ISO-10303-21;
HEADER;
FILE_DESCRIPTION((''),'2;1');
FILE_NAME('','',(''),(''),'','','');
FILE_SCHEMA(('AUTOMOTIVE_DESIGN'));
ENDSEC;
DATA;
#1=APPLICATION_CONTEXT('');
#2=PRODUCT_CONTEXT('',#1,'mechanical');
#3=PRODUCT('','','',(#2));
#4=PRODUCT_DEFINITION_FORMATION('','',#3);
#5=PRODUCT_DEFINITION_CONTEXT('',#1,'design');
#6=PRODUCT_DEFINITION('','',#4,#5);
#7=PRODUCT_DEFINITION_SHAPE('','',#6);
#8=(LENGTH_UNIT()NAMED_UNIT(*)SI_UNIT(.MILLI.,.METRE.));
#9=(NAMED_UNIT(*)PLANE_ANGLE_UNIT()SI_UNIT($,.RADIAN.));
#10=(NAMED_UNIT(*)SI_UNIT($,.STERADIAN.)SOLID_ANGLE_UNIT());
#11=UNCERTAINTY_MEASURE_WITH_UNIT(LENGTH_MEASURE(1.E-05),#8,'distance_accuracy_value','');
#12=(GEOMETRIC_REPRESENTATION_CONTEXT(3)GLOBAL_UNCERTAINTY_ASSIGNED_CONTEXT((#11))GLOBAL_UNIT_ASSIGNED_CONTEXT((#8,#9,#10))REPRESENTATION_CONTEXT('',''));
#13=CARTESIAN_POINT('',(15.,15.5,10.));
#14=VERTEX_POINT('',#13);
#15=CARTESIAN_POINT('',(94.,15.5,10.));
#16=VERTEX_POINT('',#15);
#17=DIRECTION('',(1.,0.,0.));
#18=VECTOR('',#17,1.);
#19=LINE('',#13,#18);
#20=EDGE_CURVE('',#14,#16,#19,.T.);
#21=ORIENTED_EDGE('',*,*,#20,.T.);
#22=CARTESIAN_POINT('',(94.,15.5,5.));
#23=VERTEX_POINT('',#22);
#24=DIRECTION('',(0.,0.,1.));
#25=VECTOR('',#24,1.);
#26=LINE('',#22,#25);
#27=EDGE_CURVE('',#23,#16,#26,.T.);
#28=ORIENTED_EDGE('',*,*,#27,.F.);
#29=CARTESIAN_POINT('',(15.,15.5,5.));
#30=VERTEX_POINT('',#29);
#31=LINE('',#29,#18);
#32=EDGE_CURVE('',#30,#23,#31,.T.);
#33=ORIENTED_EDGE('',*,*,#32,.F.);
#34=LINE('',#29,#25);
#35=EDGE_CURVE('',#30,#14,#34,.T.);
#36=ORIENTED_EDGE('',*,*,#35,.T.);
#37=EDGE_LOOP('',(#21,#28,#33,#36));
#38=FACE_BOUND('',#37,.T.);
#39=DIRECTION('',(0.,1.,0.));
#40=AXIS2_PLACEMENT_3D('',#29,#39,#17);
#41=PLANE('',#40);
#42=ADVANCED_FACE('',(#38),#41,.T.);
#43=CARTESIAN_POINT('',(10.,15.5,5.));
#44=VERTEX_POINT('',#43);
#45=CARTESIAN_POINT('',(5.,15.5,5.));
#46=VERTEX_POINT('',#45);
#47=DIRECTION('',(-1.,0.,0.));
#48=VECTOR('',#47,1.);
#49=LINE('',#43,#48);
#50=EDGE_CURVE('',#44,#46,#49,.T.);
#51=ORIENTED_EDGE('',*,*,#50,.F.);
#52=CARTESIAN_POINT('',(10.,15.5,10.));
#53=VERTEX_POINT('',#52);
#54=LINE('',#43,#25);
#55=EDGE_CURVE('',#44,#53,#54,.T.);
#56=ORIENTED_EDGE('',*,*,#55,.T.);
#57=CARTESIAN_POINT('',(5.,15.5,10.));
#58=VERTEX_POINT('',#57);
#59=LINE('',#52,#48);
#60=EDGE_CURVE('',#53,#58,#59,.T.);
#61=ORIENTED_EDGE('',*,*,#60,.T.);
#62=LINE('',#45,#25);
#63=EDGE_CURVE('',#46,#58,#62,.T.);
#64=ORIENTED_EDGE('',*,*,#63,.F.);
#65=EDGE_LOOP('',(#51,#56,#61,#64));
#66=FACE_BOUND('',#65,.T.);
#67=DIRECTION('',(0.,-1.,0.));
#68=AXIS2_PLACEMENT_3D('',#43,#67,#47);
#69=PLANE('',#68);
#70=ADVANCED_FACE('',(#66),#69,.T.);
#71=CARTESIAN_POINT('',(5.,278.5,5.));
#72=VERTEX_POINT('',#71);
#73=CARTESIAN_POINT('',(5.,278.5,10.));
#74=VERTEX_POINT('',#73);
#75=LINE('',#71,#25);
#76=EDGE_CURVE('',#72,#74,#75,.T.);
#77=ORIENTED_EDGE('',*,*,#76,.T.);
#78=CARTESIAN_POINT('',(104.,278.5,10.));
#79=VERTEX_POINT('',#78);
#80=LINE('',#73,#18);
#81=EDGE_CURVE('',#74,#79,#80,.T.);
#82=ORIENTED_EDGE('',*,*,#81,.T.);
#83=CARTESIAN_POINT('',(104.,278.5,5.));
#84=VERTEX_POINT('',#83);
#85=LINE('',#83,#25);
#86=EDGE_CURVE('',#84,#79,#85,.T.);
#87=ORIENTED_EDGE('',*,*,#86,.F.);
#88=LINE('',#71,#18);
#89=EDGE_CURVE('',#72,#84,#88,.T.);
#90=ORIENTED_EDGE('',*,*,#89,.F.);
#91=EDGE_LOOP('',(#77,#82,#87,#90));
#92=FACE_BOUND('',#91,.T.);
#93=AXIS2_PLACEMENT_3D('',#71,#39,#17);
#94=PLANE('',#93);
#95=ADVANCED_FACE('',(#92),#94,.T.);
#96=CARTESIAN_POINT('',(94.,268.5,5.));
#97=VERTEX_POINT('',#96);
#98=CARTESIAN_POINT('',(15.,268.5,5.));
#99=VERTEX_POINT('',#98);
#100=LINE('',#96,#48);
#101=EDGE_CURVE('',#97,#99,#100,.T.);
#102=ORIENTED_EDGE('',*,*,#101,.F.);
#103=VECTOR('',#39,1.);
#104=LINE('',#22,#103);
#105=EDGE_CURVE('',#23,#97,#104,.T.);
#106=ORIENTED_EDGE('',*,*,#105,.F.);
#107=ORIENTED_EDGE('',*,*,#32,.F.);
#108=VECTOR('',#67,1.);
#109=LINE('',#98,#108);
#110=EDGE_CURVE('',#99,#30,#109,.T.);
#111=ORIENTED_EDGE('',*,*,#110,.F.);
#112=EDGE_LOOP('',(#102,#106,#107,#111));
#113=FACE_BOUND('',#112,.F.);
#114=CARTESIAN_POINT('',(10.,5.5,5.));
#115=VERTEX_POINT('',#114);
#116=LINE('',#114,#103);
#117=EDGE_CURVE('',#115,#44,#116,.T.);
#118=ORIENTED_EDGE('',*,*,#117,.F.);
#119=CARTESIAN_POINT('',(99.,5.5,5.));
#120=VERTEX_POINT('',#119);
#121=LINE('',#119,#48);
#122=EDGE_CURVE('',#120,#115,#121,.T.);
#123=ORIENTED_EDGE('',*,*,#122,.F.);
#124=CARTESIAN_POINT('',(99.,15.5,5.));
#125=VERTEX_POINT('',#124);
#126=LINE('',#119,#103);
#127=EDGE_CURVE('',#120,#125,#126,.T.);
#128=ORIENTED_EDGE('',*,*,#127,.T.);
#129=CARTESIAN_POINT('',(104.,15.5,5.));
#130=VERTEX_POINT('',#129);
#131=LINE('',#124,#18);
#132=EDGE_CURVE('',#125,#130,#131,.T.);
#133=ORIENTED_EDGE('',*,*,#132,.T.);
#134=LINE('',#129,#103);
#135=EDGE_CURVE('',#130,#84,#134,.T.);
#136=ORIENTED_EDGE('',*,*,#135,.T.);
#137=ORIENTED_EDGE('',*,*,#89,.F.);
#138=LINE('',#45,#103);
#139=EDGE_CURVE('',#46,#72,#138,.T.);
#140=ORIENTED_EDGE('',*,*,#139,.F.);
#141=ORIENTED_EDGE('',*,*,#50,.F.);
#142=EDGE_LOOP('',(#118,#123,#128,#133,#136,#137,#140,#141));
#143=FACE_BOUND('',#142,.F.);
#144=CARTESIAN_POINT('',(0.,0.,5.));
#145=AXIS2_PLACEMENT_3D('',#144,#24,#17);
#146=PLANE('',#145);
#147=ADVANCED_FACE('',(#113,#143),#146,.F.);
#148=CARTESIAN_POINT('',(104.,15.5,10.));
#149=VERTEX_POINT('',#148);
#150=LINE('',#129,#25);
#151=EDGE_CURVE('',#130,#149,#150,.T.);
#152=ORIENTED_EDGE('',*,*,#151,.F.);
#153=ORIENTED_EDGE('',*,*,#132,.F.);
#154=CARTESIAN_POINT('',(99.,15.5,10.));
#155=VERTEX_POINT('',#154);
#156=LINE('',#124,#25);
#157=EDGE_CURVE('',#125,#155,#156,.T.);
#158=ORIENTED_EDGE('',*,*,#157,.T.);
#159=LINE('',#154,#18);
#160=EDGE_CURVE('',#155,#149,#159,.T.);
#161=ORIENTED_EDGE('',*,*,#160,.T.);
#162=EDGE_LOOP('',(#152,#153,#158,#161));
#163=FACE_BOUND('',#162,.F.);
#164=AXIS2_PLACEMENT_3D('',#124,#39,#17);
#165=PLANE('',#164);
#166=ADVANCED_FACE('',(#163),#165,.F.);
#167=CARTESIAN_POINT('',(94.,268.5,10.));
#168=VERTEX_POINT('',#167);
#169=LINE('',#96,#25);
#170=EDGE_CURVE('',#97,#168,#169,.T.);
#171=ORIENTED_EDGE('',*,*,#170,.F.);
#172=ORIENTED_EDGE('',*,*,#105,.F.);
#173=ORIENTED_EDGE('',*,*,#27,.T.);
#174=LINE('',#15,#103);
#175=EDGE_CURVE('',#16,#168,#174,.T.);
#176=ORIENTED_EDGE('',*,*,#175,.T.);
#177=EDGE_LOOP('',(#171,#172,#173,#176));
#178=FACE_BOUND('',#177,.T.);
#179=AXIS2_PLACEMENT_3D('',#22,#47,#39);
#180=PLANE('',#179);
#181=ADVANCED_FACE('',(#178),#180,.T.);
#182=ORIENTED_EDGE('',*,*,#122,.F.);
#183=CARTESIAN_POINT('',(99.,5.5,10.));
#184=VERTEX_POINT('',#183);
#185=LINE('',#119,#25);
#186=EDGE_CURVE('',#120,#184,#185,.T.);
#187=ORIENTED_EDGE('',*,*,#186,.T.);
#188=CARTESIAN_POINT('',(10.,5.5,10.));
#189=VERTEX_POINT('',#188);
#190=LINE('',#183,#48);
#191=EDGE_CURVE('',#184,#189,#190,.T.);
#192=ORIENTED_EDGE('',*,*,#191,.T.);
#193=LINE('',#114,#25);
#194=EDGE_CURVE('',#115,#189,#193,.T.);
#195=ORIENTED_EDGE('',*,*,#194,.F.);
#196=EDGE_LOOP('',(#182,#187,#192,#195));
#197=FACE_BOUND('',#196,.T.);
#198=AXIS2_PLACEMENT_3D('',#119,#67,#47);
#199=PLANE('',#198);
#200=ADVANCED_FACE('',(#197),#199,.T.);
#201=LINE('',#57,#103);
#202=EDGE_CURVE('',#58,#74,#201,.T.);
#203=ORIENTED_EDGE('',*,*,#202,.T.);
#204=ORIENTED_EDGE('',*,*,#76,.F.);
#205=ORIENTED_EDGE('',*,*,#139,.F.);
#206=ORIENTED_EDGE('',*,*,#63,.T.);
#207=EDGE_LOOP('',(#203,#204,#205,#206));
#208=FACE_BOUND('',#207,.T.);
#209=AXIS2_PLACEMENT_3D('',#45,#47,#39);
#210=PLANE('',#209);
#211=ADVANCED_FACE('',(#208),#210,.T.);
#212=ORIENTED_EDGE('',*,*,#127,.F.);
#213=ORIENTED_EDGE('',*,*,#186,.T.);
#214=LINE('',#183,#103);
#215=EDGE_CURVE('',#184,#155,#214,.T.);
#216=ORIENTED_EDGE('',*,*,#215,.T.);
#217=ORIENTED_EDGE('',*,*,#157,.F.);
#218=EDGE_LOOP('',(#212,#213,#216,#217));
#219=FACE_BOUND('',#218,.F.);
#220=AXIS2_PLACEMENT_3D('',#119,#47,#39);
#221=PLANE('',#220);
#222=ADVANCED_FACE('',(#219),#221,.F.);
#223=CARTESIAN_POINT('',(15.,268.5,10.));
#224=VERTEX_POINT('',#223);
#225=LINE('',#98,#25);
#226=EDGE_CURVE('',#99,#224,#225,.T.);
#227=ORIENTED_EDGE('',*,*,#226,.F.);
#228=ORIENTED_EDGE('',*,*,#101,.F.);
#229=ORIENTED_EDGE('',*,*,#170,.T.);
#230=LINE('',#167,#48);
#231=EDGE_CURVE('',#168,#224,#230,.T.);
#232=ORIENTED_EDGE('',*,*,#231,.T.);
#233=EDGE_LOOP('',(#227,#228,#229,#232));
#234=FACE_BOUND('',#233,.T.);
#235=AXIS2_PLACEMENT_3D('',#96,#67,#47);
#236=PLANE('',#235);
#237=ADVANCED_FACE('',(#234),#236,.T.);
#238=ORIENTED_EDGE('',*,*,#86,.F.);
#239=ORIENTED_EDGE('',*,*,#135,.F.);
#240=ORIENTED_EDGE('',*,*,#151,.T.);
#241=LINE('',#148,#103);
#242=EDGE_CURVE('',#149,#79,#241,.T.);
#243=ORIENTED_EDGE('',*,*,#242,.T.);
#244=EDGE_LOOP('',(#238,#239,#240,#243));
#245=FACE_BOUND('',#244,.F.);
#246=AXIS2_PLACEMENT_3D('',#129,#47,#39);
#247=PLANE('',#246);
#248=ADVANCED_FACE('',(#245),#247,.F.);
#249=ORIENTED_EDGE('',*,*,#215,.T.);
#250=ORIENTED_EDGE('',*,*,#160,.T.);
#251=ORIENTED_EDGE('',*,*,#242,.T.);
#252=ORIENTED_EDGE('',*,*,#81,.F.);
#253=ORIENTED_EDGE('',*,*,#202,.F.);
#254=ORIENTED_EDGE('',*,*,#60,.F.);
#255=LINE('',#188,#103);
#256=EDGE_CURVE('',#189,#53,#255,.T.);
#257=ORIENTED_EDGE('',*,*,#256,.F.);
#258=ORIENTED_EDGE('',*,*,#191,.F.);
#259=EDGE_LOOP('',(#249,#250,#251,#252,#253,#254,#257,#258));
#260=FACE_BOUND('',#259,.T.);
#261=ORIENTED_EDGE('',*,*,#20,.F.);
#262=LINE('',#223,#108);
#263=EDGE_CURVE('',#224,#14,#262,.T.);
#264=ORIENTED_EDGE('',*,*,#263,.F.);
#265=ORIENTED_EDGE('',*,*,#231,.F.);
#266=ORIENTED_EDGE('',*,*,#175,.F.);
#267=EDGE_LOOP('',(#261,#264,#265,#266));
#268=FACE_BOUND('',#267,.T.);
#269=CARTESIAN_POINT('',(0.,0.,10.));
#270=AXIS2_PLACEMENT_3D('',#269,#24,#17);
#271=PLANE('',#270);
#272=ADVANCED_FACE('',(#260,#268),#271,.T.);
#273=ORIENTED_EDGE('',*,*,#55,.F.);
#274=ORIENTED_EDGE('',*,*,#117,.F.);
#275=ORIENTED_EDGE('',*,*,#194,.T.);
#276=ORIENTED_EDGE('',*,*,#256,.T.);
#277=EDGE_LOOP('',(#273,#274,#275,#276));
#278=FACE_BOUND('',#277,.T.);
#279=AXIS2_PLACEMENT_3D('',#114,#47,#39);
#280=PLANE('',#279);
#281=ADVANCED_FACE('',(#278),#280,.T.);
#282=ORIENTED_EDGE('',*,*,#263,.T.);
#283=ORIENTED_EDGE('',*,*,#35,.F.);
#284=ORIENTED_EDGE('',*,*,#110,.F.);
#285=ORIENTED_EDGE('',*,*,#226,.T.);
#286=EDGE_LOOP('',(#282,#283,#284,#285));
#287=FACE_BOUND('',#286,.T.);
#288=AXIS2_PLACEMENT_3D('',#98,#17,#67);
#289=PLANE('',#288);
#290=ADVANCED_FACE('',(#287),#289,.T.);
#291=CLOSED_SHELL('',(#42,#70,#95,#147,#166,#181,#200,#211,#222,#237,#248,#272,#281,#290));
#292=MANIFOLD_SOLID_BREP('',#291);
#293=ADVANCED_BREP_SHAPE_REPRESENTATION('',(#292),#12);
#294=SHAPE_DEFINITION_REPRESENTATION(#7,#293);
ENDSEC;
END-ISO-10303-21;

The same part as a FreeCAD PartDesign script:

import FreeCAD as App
import Part
import Sketcher

V = App.Vector
Q = App.Units.Quantity

doc = App.newDocument("Part")
body = doc.addObject("PartDesign::Body", "Body")

# Sketch on XY plane
sketch1 = body.newObject("Sketcher::SketchObject", "Sketch")
sketch1.AttachmentSupport = (doc.getObject("XY_Plane"), [""])
sketch1.MapMode = "FlatFace"
sketch1.AttachmentOffset = App.Placement(V(0, 0, 5), App.Rotation())
sketch1.addGeometry([
    Part.LineSegment(V(10, 16, 0), V(10, 6, 0)),  # 0
    Part.LineSegment(V(10, 6, 0), V(99, 6, 0)),  # 1
    Part.LineSegment(V(99, 6, 0), V(99, 16, 0)),  # 2
    Part.LineSegment(V(99, 16, 0), V(104, 16, 0)),  # 3
    Part.LineSegment(V(104, 16, 0), V(104, 278, 0)),  # 4
    Part.LineSegment(V(104, 278, 0), V(5, 278, 0)),  # 5
    Part.LineSegment(V(5, 278, 0), V(5, 16, 0)),  # 6
    Part.LineSegment(V(5, 16, 0), V(10, 16, 0)),  # 7
    Part.LineSegment(V(94, 16, 0), V(15, 16, 0)),  # 8
    Part.LineSegment(V(15, 16, 0), V(15, 268, 0)),  # 9
    Part.LineSegment(V(15, 268, 0), V(94, 268, 0)),  # 10
    Part.LineSegment(V(94, 268, 0), V(94, 16, 0)),  # 11
], False)
sketch1.addConstraint([
    Sketcher.Constraint("Coincident", 0, 2, 1, 1),
    Sketcher.Constraint("Coincident", 1, 2, 2, 1),
    Sketcher.Constraint("Coincident", 2, 2, 3, 1),
    Sketcher.Constraint("Coincident", 3, 2, 4, 1),
    Sketcher.Constraint("Coincident", 4, 2, 5, 1),
    Sketcher.Constraint("Coincident", 5, 2, 6, 1),
    Sketcher.Constraint("Coincident", 6, 2, 7, 1),
    Sketcher.Constraint("Coincident", 7, 2, 0, 1),
    Sketcher.Constraint("Coincident", 8, 2, 9, 1),
    Sketcher.Constraint("Coincident", 9, 2, 10, 1),
    Sketcher.Constraint("Coincident", 10, 2, 11, 1),
    Sketcher.Constraint("Coincident", 11, 2, 8, 1),
    Sketcher.Constraint("Vertical", 0),
    Sketcher.Constraint("Horizontal", 1),
    Sketcher.Constraint("Vertical", 2),
    Sketcher.Constraint("Horizontal", 3),
    Sketcher.Constraint("Vertical", 4),
    Sketcher.Constraint("Horizontal", 5),
    Sketcher.Constraint("Vertical", 6),
    Sketcher.Constraint("Horizontal", 7),
    Sketcher.Constraint("Horizontal", 8),
    Sketcher.Constraint("Vertical", 9),
    Sketcher.Constraint("Horizontal", 10),
    Sketcher.Constraint("Vertical", 11),
    Sketcher.Constraint("Horizontal", 3, 2, 6, 2),
    Sketcher.Constraint("Horizontal", 7, 2, 8, 2),
    Sketcher.Constraint("Equal", 3, 7),
    Sketcher.Constraint("DistanceX", 3, 1, 3, 2, Q("5 mm")),
    Sketcher.Constraint("DistanceX", 5, 2, 5, 1, Q("99 mm")),
    Sketcher.Constraint("DistanceX", 8, 2, 8, 1, Q("79 mm")),
    Sketcher.Constraint("DistanceY", 0, 2, 0, 1, Q("10 mm")),
    Sketcher.Constraint("DistanceY", 9, 1, 9, 2, Q("253 mm")),
    Sketcher.Constraint("DistanceX", -1, 1, 0, 2, Q("10 mm")),
    Sketcher.Constraint("DistanceY", 1, 2, 4, 2, Q("273 mm")),
    Sketcher.Constraint("DistanceX", 7, 2, 8, 2, Q("5 mm")),
    Sketcher.Constraint("DistanceY", -1, 1, 0, 2, Q("5.5 mm")),
])
pad1 = body.newObject("PartDesign::Pad", "Pad")
pad1.Profile = sketch1
pad1.Length = 5

doc.recompute()
